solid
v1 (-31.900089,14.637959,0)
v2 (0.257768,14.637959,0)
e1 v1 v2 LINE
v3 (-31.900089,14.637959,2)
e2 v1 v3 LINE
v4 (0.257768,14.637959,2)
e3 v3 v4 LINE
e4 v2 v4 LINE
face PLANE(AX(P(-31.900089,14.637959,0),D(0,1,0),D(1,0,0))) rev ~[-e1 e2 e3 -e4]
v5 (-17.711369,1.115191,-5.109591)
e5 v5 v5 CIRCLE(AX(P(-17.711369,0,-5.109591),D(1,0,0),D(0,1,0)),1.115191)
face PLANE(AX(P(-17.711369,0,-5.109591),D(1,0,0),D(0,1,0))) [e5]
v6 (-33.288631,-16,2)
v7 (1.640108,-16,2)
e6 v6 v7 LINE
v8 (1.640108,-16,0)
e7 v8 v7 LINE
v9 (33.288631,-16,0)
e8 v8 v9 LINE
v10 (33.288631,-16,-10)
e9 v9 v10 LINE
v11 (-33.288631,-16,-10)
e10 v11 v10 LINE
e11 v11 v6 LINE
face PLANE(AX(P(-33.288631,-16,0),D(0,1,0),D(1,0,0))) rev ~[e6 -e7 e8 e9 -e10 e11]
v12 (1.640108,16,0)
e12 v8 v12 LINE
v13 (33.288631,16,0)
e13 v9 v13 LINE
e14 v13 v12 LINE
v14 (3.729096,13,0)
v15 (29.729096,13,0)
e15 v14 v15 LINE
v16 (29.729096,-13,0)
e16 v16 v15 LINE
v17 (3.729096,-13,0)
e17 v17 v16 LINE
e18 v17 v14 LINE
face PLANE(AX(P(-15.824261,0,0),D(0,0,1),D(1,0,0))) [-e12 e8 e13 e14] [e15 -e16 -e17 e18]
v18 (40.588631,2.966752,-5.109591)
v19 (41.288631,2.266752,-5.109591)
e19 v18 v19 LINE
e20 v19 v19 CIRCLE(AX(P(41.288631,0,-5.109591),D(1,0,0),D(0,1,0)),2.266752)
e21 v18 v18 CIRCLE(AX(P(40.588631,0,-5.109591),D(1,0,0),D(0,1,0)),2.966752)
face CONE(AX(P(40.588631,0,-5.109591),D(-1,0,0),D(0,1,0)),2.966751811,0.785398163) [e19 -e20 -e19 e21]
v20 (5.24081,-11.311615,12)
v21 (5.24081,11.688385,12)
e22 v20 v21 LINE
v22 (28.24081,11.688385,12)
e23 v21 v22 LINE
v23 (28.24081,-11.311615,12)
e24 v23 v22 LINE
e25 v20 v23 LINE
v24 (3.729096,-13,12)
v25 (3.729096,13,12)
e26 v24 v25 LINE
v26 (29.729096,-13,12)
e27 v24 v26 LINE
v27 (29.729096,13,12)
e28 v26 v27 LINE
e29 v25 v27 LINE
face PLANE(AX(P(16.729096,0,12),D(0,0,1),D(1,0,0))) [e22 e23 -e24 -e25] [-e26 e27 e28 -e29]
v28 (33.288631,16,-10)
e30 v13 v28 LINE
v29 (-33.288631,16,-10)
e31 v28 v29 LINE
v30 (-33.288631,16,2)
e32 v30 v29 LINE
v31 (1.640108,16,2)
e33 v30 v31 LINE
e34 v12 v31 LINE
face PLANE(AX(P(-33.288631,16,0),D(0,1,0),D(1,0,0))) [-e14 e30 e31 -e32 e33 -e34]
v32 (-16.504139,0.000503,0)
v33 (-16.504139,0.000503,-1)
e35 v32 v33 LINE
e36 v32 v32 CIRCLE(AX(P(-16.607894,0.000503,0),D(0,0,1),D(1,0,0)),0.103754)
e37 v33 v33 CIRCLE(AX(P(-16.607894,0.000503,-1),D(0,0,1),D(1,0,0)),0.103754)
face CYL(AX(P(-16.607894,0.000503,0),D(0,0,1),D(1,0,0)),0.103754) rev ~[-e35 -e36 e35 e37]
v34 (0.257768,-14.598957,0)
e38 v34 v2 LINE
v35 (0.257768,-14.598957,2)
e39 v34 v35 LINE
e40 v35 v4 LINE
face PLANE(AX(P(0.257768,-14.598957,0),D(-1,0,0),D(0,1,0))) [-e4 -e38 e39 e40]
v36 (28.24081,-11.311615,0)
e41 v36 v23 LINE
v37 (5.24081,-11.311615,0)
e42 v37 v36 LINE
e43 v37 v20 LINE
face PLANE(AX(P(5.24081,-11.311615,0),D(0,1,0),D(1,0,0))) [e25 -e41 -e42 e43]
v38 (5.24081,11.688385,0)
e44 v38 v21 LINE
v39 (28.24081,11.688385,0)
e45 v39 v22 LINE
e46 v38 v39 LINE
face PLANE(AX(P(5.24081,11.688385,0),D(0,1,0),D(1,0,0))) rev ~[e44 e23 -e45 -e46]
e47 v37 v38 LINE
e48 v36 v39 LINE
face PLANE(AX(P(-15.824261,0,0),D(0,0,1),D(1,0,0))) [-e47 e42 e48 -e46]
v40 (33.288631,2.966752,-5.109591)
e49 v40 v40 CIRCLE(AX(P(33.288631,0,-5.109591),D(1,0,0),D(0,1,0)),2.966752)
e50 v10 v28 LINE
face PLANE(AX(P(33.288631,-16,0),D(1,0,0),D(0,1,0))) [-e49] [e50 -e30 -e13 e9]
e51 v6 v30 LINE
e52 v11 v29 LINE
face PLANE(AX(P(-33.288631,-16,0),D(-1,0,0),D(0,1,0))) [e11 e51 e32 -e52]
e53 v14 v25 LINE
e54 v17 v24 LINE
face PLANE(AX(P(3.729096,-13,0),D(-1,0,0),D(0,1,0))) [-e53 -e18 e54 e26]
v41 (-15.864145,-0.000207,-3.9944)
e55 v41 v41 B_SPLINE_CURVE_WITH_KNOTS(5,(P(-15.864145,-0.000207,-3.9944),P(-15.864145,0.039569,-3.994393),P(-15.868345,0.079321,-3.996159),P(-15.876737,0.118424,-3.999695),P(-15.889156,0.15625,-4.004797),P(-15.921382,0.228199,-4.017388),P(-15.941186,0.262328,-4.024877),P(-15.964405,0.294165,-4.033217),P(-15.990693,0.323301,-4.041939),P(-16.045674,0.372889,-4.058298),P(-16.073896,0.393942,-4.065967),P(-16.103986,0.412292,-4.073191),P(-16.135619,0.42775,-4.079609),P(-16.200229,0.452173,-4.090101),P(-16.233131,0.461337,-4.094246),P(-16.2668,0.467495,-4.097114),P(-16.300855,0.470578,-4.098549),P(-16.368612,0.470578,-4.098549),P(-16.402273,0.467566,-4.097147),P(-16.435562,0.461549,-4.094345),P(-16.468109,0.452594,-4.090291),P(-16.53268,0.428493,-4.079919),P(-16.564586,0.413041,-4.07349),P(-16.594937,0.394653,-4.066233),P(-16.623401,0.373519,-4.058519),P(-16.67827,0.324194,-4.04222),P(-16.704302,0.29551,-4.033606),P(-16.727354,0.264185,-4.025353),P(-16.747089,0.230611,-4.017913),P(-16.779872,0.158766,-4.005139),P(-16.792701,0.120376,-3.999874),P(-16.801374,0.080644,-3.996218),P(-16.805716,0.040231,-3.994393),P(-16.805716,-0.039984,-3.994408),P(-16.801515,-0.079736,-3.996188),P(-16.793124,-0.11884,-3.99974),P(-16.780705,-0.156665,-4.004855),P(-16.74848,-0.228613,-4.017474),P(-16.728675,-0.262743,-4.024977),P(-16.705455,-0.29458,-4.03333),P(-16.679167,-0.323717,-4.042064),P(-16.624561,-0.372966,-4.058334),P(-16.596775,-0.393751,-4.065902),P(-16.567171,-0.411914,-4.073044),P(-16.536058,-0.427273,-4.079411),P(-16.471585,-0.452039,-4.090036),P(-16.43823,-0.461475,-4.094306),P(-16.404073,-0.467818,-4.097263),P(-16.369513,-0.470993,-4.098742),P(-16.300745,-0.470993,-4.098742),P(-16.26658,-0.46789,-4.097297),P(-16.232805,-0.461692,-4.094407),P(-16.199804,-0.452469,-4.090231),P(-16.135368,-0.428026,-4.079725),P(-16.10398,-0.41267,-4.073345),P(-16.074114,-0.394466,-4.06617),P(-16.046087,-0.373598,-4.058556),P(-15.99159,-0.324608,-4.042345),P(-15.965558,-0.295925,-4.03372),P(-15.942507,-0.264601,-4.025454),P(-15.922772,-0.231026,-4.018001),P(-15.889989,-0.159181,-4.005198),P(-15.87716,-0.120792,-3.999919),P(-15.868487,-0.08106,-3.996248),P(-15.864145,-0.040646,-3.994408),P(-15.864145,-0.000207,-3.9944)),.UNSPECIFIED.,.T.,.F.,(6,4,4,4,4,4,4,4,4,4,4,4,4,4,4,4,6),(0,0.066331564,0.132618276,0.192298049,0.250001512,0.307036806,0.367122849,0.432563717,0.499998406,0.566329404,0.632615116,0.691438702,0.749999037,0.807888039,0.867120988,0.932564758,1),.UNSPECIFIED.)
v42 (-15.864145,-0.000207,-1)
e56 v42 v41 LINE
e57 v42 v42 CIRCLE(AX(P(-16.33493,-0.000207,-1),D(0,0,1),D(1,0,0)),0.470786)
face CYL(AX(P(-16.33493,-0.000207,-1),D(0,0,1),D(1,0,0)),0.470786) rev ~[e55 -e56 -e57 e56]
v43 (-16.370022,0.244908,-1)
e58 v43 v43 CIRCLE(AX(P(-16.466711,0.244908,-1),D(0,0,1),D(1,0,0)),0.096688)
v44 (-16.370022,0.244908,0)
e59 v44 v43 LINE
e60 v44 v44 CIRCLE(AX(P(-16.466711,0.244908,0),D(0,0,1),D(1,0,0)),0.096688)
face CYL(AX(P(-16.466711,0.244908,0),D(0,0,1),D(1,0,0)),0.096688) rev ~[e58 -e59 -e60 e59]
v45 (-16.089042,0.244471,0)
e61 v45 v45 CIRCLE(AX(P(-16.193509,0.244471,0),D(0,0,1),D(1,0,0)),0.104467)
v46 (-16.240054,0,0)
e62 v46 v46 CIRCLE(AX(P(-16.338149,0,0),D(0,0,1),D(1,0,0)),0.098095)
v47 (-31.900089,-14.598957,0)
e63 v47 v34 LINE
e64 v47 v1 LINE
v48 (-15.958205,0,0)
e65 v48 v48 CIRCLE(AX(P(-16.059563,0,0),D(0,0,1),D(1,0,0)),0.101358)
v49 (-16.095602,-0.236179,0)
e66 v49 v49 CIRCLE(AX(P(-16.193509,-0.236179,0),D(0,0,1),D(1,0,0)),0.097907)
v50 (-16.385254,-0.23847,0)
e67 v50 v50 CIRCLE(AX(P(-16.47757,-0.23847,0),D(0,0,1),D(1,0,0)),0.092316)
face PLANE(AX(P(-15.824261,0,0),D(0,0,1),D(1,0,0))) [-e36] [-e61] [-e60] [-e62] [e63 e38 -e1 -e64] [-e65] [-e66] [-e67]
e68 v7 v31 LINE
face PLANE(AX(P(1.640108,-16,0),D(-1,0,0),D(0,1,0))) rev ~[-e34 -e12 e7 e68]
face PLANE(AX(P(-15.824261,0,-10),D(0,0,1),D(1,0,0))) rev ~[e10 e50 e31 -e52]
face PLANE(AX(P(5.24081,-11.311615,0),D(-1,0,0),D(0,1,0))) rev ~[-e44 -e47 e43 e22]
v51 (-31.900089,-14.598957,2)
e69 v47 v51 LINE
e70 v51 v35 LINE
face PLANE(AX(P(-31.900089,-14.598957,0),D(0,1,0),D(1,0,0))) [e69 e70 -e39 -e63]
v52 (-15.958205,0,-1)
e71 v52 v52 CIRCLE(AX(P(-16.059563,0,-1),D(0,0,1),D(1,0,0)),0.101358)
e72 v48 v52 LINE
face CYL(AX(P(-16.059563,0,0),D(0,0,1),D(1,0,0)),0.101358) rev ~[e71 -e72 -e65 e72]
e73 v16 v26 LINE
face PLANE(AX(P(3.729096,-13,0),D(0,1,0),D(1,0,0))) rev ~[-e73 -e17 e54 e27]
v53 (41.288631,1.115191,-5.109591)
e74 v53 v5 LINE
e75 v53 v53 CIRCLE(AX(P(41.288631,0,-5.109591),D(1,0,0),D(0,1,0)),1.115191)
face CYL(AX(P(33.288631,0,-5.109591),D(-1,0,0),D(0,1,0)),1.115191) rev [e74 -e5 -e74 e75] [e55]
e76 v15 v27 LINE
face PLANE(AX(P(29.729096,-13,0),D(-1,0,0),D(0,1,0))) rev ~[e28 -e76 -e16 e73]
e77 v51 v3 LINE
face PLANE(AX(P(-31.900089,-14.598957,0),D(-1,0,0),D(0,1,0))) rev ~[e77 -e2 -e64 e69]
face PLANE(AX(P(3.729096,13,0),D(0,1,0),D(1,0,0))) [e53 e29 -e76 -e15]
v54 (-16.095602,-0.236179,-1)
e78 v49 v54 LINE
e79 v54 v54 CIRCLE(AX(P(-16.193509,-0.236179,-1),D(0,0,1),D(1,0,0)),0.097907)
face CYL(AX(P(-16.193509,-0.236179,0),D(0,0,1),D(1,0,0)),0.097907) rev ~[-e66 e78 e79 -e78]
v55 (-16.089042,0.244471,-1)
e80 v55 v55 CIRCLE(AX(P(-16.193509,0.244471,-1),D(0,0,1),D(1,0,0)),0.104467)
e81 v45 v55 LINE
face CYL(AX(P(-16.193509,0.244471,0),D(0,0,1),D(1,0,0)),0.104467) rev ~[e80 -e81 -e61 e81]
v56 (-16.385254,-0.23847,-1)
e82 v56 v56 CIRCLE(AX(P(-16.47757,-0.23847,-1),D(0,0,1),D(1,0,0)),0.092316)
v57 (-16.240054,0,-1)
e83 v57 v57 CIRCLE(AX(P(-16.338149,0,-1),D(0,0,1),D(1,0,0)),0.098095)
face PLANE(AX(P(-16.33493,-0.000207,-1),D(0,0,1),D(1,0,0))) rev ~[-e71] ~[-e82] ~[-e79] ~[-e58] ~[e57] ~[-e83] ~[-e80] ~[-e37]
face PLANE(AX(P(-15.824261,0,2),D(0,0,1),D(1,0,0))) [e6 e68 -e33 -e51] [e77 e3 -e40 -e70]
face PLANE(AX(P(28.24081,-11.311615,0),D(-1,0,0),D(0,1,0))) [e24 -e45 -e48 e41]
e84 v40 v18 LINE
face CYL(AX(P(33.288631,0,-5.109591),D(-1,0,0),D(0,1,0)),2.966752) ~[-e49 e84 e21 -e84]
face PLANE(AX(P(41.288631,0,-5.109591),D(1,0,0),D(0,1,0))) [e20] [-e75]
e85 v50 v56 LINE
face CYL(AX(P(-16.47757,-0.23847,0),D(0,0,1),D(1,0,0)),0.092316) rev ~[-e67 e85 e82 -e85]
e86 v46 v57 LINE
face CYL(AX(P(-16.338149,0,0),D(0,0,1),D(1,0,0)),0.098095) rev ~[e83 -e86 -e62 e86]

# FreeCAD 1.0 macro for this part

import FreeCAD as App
import Part
import Sketcher
from FreeCAD import Vector
Q = App.Units.Quantity


def edges_at(feature, points):
    """Names of the edges that pass closest to the given points."""
    edges = feature.Shape.Edges
    near = lambda p: min(range(len(edges)), key=lambda i: edges[i].distToShape(Part.Vertex(*p))[0])
    return sorted({f"Edge{near(p) + 1}" for p in points})


def add_polygon(sketch, points):
    """Adds a closed chain of lines whose ends are joined by coincident constraints."""
    first, n = sketch.GeometryCount, len(points)
    for a, b in zip(points, points[1:] + points[:1]):
        sketch.addGeometry(Part.LineSegment(App.Vector(*a, 0), App.Vector(*b, 0)), False)
    for i in range(n):
        sketch.addConstraint(Sketcher.Constraint("Coincident", first + i, 2, first + (i + 1) % n, 1))

doc = App.newDocument("Part")
params = doc.addObject("Spreadsheet::Sheet", "Params")
for row, (alias, value) in enumerate([
    ("sketch1_height", "32 mm"),
    ("pad1_length", "10 mm"),
    ("sketch2_height", "32 mm"),
    ("pad2_length", "2 mm"),
    ("sketch3_width", "26 mm"),
    ("sketch3_width2", "23 mm"),
    ("pad3_length", "12 mm"),
    ("pocket1_length", "51 mm"),
    ("pad4_length", "8 mm"),
    ("chamfer_size", "0.7 mm"),
    ("pocket2_length", "1 mm"),
    ("pocket3_length", "4 mm"),
], start=1):
    params.set(f"A{row}", alias)
    params.set(f"B{row}", "=" + value)
    params.setAlias(f"B{row}", alias)

body = doc.addObject("PartDesign::Body", "Body")

# Sketch on XY plane
sketch1 = body.newObject("Sketcher::SketchObject", "Sketch")
sketch1.AttachmentSupport = (doc.getObject("XY_Plane"), [""])
sketch1.MapMode = "FlatFace"
add_polygon(sketch1, [(-33.288631, 16), (-33.288631, -16), (33.288631, -16), (33.288631, 16)])  # lines 0-3
sketch1.addConstraint([
    Sketcher.Constraint("Vertical", 0),
    Sketcher.Constraint("Horizontal", 1),
    Sketcher.Constraint("Vertical", 2),
    Sketcher.Constraint("Horizontal", 3),
    Sketcher.Constraint("Symmetric", 0, 2, 2, 2, -1, 1),
    Sketcher.Constraint("DistanceY", 0, 2, 0, 1, Q("32 mm")),
    Sketcher.Constraint("DistanceX", 1, 1, 1, 2, Q("66.577262 mm")),
])
sketch1.setExpression("Constraints[9]", "Params.sketch1_height")
pad1 = body.newObject("PartDesign::Pad", "Pad")
pad1.Profile = sketch1
pad1.setExpression("Length", "Params.pad1_length")
pad1.Reversed = True

# Sketch on XY plane
sketch2 = body.newObject("Sketcher::SketchObject", "Sketch001")
sketch2.AttachmentSupport = (doc.getObject("XY_Plane"), [""])
sketch2.MapMode = "FlatFace"
add_polygon(sketch2, [(-33.288631, 16), (-33.288631, -16), (1.640108, -16), (1.640108, 16)])  # lines 0-3
add_polygon(sketch2, [(0.257768, -14.598957), (-31.900089, -14.598957), (-31.900089, 14.637959), (0.257768, 14.637959)])  # lines 4-7
sketch2.addConstraint([
    Sketcher.Constraint("Vertical", 0),
    Sketcher.Constraint("Horizontal", 1),
    Sketcher.Constraint("Vertical", 2),
    Sketcher.Constraint("Horizontal", 3),
    Sketcher.Constraint("Horizontal", 4),
    Sketcher.Constraint("Vertical", 5),
    Sketcher.Constraint("Horizontal", 6),
    Sketcher.Constraint("Vertical", 7),
    Sketcher.Constraint("DistanceY", 0, 2, 0, 1, Q("32 mm")),
    Sketcher.Constraint("DistanceY", 0, 2, -1, 1, Q("16 mm")),
    Sketcher.Constraint("DistanceX", 1, 1, 1, 2, Q("34.928739 mm")),
    Sketcher.Constraint("DistanceX", 3, 2, 6, 2, Q("33.546399 mm")),
    Sketcher.Constraint("DistanceX", 4, 2, 4, 1, Q("32.157857 mm")),
    Sketcher.Constraint("DistanceY", 5, 1, 5, 2, Q("29.236916 mm")),
    Sketcher.Constraint("DistanceX", 0, 2, -1, 1, Q("33.288631 mm")),
    Sketcher.Constraint("DistanceY", -1, 1, 5, 2, Q("14.637959 mm")),
])
sketch2.setExpression("Constraints[16]", "Params.sketch2_height")
pad2 = body.newObject("PartDesign::Pad", "Pad001")
pad2.Profile = sketch2
pad2.setExpression("Length", "Params.pad2_length")

# Sketch on XY plane
sketch3 = body.newObject("Sketcher::SketchObject", "Sketch002")
sketch3.AttachmentSupport = (doc.getObject("XY_Plane"), [""])
sketch3.MapMode = "FlatFace"
add_polygon(sketch3, [(3.729096, 13), (3.729096, -13), (29.729096, -13), (29.729096, 13)])  # lines 0-3
add_polygon(sketch3, [(28.24081, -11.311615), (5.24081, -11.311615), (5.24081, 11.688385), (28.24081, 11.688385)])  # lines 4-7
sketch3.addConstraint([
    Sketcher.Constraint("Vertical", 0),
    Sketcher.Constraint("Horizontal", 1),
    Sketcher.Constraint("Vertical", 2),
    Sketcher.Constraint("Horizontal", 3),
    Sketcher.Constraint("Horizontal", 4),
    Sketcher.Constraint("Vertical", 5),
    Sketcher.Constraint("Horizontal", 6),
    Sketcher.Constraint("Vertical", 7),
    Sketcher.Constraint("Equal", 3, 0),
    Sketcher.Constraint("Equal", 6, 5),
    Sketcher.Constraint("DistanceX", 1, 1, 1, 2, Q("26 mm")),
    Sketcher.Constraint("DistanceX", 4, 2, 4, 1, Q("23 mm")),
    Sketcher.Constraint("DistanceY", 0, 2, -1, 1, Q("13 mm")),
    Sketcher.Constraint("DistanceX", -1, 1, 4, 2, Q("5.24081 mm")),
    Sketcher.Constraint("DistanceX", -1, 1, 0, 2, Q("3.729096 mm")),
    Sketcher.Constraint("DistanceY", 4, 2, -1, 1, Q("11.311615 mm")),
])
sketch3.setExpression("Constraints[18]", "Params.sketch3_width")
sketch3.setExpression("Constraints[19]", "Params.sketch3_width2")
pad3 = body.newObject("PartDesign::Pad", "Pad002")
pad3.Profile = sketch3
pad3.setExpression("Length", "Params.pad3_length")

# Sketch on YZ plane
sketch4 = body.newObject("Sketcher::SketchObject", "Sketch003")
sketch4.AttachmentSupport = (doc.getObject("YZ_Plane"), [""])
sketch4.MapMode = "FlatFace"
sketch4.AttachmentOffset = App.Placement(Vector(0, 0, 33.288631), App.Rotation())
sketch4.addGeometry(Part.Circle(Vector(0, -5.109591, 0), Vector(0, 0, 1), 1.115191), False)
sketch4.addConstraint([
    Sketcher.Constraint("PointOnObject", 0, 3, -2),
    Sketcher.Constraint("Diameter", 0, Q("2.230381 mm")),
    Sketcher.Constraint("DistanceY", 0, 3, -1, 1, Q("5.109591 mm")),
])
pocket1 = body.newObject("PartDesign::Pocket", "Pocket")
pocket1.Profile = sketch4
pocket1.setExpression("Length", "Params.pocket1_length")

# Sketch on YZ plane
sketch5 = body.newObject("Sketcher::SketchObject", "Sketch004")
sketch5.AttachmentSupport = (doc.getObject("YZ_Plane"), [""])
sketch5.MapMode = "FlatFace"
sketch5.AttachmentOffset = App.Placement(Vector(0, 0, 33.288631), App.Rotation())
sketch5.addGeometry([
    Part.Circle(Vector(0, -5.109591, 0), Vector(0, 0, 1), 2.966752),
    Part.Circle(Vector(0, -5.109591, 0), Vector(0, 0, 1), 1.115191),
], False)
sketch5.addConstraint([
    Sketcher.Constraint("Coincident", 1, 3, 0, 3),
    Sketcher.Constraint("PointOnObject", 0, 3, -2),
    Sketcher.Constraint("Diameter", 1, Q("2.230381 mm")),
    Sketcher.Constraint("Diameter", 0, Q("5.933504 mm")),
    Sketcher.Constraint("DistanceY", 0, 3, -1, 1, Q("5.109591 mm")),
])
pad4 = body.newObject("PartDesign::Pad", "Pad003")
pad4.Profile = sketch5
pad4.setExpression("Length", "Params.pad4_length")
doc.recompute()

chamfer = body.newObject("PartDesign::Chamfer", "Chamfer")
chamfer.Base = (pad4, edges_at(pad4, [(41.289, -2.967, -5.11)]))
chamfer.setExpression("Size", "Params.chamfer_size")

# Sketch on XY plane
sketch6 = body.newObject("Sketcher::SketchObject", "Sketch005")
sketch6.AttachmentSupport = (doc.getObject("XY_Plane"), [""])
sketch6.MapMode = "FlatFace"
sketch6.addGeometry([
    Part.Circle(Vector(-16.466711, 0.244908, 0), Vector(0, 0, 1), 0.096688),  # 0
    Part.Circle(Vector(-16.193509, 0.244471, 0), Vector(0, 0, 1), 0.104467),  # 1
    Part.Circle(Vector(-16.059563, 0, 0), Vector(0, 0, 1), 0.101358),  # 2
    Part.Circle(Vector(-16.193509, -0.236179, 0), Vector(0, 0, 1), 0.097907),  # 3
    Part.Circle(Vector(-16.47757, -0.23847, 0), Vector(0, 0, 1), 0.092316),  # 4
    Part.Circle(Vector(-16.607894, 0.000503, 0), Vector(0, 0, 1), 0.103754),  # 5
    Part.Circle(Vector(-16.338149, 0, 0), Vector(0, 0, 1), 0.098095),  # 6
], False)
sketch6.addConstraint([
    Sketcher.Constraint("PointOnObject", 2, 3, -1),
    Sketcher.Constraint("PointOnObject", 6, 3, -1),
    Sketcher.Constraint("Vertical", 1, 3, 3, 3),
    Sketcher.Constraint("Diameter", 5, Q("0.207508 mm")),
    Sketcher.Constraint("Diameter", 6, Q("0.196191 mm")),
    Sketcher.Constraint("Diameter", 0, Q("0.193377 mm")),
    Sketcher.Constraint("Diameter", 1, Q("0.208935 mm")),
    Sketcher.Constraint("Diameter", 2, Q("0.202716 mm")),
    Sketcher.Constraint("Diameter", 3, Q("0.195814 mm")),
    Sketcher.Constraint("Diameter", 4, Q("0.184632 mm")),
    Sketcher.Constraint("DistanceX", 0, 3, 1, 3, Q("0.273202 mm")),
    Sketcher.Constraint("DistanceX", 0, 3, -1, 1, Q("16.466711 mm")),
    Sketcher.Constraint("DistanceY", -1, 1, 0, 3, Q("0.244908 mm")),
    Sketcher.Constraint("DistanceY", -1, 1, 1, 3, Q("0.244471 mm")),
    Sketcher.Constraint("DistanceY", 3, 3, -1, 1, Q("0.236179 mm")),
    Sketcher.Constraint("DistanceX", 4, 3, -1, 1, Q("16.47757 mm")),
    Sketcher.Constraint("DistanceY", 4, 3, -1, 1, Q("0.23847 mm")),
    Sketcher.Constraint("DistanceX", 6, 3, -1, 1, Q("16.338149 mm")),
    Sketcher.Constraint("DistanceX", 0, 3, 2, 3, Q("0.407148 mm")),
    Sketcher.Constraint("DistanceY", 5, 3, 1, 3, Q("0.243968 mm")),
    Sketcher.Constraint("DistanceX", 5, 3, 2, 3, Q("0.548331 mm")),
])
pocket2 = body.newObject("PartDesign::Pocket", "Pocket001")
pocket2.Profile = sketch6
pocket2.setExpression("Length", "Params.pocket2_length")

# Sketch on XY plane
sketch7 = body.newObject("Sketcher::SketchObject", "Sketch006")
sketch7.AttachmentSupport = (doc.getObject("XY_Plane"), [""])
sketch7.MapMode = "FlatFace"
sketch7.AttachmentOffset = App.Placement(Vector(0, 0, -1), App.Rotation())
sketch7.addGeometry(Part.Circle(Vector(-16.33493, -0.000207, 0), Vector(0, 0, 1), 0.470786), False)
sketch7.addConstraint([
    Sketcher.Constraint("Diameter", 0, Q("0.941572 mm")),
    Sketcher.Constraint("DistanceX", 0, 3, -1, 1, Q("16.33493 mm")),
    Sketcher.Constraint("DistanceY", 0, 3, -1, 1, Q("0.000207 mm")),
])
pocket3 = body.newObject("PartDesign::Pocket", "Pocket002")
pocket3.Profile = sketch7
pocket3.setExpression("Length", "Params.pocket3_length")

doc.recompute()
